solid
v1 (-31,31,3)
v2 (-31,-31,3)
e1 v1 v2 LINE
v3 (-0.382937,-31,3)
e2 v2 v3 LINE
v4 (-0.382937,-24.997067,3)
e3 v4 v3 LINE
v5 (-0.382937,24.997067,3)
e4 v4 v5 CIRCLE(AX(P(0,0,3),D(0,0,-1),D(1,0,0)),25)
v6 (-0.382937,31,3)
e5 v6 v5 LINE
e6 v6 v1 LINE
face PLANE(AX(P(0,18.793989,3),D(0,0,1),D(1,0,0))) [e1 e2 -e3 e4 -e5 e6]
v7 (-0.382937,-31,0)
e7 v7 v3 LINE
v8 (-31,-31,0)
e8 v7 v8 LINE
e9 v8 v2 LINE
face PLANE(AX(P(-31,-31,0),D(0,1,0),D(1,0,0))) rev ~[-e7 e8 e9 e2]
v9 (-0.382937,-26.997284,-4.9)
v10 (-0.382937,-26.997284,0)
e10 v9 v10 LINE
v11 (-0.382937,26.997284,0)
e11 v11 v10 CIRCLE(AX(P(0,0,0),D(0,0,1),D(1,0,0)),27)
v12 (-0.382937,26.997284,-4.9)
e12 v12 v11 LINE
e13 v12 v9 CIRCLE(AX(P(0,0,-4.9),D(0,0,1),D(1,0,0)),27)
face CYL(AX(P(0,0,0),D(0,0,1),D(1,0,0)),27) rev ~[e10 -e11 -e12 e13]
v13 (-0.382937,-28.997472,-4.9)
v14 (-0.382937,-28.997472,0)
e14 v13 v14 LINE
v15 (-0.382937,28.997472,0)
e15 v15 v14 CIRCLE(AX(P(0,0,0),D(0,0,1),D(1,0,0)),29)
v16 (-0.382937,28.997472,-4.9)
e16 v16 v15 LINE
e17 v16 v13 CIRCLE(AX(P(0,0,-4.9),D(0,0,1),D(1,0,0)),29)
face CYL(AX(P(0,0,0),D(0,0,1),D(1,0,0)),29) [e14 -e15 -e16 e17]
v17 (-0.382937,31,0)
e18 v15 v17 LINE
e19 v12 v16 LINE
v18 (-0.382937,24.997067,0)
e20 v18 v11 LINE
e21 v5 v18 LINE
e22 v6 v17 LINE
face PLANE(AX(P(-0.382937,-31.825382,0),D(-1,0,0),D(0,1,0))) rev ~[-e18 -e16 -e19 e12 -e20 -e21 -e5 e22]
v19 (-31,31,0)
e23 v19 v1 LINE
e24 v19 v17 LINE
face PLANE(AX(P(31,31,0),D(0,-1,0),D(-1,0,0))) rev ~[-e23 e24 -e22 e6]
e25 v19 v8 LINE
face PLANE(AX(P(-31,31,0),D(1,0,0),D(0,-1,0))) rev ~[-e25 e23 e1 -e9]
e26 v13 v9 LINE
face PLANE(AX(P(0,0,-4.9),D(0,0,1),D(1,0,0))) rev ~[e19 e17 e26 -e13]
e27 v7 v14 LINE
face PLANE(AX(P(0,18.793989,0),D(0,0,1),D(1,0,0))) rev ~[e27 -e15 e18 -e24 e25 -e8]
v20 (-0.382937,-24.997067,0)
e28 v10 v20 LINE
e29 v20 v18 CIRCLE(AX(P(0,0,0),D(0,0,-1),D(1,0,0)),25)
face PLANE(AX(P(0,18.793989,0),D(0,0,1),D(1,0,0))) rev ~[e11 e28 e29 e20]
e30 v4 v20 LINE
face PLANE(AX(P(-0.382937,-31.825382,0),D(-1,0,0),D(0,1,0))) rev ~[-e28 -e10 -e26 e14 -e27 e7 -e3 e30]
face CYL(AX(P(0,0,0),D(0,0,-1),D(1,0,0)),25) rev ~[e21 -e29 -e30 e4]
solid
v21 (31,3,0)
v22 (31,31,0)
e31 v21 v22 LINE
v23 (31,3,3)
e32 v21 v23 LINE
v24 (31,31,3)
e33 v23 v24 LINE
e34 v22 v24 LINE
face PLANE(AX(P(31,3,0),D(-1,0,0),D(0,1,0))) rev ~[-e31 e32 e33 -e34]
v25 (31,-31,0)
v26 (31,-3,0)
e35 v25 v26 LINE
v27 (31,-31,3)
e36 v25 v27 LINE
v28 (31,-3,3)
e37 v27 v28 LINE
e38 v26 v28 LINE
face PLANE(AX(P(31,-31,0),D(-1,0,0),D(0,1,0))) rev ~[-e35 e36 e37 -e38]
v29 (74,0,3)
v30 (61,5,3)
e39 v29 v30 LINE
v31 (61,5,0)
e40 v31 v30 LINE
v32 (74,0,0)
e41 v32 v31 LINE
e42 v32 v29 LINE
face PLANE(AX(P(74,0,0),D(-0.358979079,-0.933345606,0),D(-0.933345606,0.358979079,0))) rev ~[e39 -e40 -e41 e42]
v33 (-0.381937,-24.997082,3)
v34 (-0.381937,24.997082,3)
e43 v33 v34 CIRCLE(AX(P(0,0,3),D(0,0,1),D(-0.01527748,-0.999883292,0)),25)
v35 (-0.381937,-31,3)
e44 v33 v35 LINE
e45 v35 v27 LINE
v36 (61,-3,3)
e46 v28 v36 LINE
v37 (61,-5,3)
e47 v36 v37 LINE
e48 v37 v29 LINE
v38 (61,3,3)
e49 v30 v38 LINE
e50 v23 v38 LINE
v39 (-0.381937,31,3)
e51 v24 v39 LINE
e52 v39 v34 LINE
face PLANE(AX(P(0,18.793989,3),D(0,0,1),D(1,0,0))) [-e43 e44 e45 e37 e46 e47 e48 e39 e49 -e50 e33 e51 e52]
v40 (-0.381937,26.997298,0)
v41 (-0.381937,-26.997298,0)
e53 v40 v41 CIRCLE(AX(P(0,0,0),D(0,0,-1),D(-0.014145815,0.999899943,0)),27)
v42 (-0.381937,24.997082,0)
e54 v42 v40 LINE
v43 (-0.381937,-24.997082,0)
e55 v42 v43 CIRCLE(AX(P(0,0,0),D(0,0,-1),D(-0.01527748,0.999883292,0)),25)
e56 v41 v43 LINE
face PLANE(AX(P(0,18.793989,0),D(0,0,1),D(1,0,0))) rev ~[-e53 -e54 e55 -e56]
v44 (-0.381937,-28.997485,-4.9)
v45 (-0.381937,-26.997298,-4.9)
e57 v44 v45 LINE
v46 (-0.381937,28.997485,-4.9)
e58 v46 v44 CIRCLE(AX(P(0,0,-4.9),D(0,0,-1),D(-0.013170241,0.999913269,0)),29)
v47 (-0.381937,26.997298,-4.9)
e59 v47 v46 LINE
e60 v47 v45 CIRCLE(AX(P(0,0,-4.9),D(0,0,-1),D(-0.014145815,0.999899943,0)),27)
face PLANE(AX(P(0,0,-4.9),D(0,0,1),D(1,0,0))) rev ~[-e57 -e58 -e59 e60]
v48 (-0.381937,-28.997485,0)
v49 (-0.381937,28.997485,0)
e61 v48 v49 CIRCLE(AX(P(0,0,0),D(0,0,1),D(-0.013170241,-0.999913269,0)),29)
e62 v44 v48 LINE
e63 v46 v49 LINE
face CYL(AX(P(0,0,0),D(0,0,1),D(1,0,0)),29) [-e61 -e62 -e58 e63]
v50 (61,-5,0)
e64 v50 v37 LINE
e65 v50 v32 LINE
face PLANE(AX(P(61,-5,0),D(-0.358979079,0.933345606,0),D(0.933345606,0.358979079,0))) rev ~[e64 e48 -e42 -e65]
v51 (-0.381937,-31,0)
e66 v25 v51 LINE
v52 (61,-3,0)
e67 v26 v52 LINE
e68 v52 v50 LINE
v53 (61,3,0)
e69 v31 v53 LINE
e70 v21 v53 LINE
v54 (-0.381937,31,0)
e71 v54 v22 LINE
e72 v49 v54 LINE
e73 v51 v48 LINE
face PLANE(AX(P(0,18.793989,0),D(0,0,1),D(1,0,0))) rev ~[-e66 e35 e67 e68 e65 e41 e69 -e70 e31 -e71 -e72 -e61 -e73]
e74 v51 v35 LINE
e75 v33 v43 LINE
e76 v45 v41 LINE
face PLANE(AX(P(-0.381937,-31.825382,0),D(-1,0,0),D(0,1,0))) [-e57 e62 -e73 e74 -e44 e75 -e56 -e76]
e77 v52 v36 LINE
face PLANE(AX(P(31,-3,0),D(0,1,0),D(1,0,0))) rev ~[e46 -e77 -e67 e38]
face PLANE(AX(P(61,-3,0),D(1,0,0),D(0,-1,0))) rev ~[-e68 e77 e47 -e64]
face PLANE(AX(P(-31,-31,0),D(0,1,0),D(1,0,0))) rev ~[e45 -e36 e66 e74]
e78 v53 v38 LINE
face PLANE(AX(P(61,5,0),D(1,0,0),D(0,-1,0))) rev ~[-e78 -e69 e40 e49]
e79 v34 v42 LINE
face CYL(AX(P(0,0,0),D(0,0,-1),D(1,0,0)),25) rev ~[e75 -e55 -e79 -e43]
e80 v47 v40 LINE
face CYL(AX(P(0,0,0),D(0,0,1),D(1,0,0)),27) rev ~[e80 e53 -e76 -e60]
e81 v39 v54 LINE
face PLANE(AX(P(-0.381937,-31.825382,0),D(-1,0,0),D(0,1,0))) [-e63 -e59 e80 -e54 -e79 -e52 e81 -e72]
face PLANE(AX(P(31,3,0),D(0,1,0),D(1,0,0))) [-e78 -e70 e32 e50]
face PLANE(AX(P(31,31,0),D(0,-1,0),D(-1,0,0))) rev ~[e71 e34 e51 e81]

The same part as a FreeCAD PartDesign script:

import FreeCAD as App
import Part
import Sketcher


def add_polygon(sketch, points):
    """Adds a closed chain of lines whose ends are joined by coincident constraints."""
    first, n = sketch.GeometryCount, len(points)
    for a, b in zip(points, points[1:] + points[:1]):
        sketch.addGeometry(Part.LineSegment(App.Vector(*a, 0), App.Vector(*b, 0)), False)
    for i in range(n):
        sketch.addConstraint(Sketcher.Constraint("Coincident", first + i, 2, first + (i + 1) % n, 1))

doc = App.newDocument("Part")
body = doc.addObject("PartDesign::Body", "Body")
body.AllowCompound = True

sketch1 = doc.addObject("Sketcher::SketchObject", "Sketch")
body.addObject(sketch1)
sketch1.AttachmentSupport = (doc.XY_Plane, [""])
sketch1.MapMode = "FlatFace"
add_polygon(sketch1, [(31, 31), (-31, 31), (-31, -31), (31, -31), (31, -3), (61, -3), (61, -5), (74, 0), (61, 5), (61, 3), (31, 3)])
sketch1.addGeometry(Part.Circle(App.Vector(0, 0, 0), App.Vector(0, 0, 1), 25), False)
sketch1.addConstraint(Sketcher.Constraint("Horizontal", 0))
sketch1.addConstraint(Sketcher.Constraint("Vertical", 1))
sketch1.addConstraint(Sketcher.Constraint("Horizontal", 2))
sketch1.addConstraint(Sketcher.Constraint("Vertical", 3))
sketch1.addConstraint(Sketcher.Constraint("Horizontal", 4))
sketch1.addConstraint(Sketcher.Constraint("Vertical", 5))
sketch1.addConstraint(Sketcher.Constraint("Vertical", 8))
sketch1.addConstraint(Sketcher.Constraint("Horizontal", 9))
sketch1.addConstraint(Sketcher.Constraint("Vertical", 10))
sketch1.addConstraint(Sketcher.Constraint("Coincident", 11, 3, -1, 1))
sketch1.addConstraint(Sketcher.Constraint("Symmetric", 0, 2, 2, 2, -1, 1))
sketch1.addConstraint(Sketcher.Constraint("Symmetric", 5, 2, 7, 2, -1))
sketch1.addConstraint(Sketcher.Constraint("Symmetric", 3, 2, 9, 2, -1))
sketch1.addConstraint(Sketcher.Constraint("PointOnObject", 6, 2, -1))
sketch1.addConstraint(Sketcher.Constraint("Equal", 2, 1))
sketch1.addConstraint(Sketcher.Constraint("Diameter", 11, 50.0))
sketch1.addConstraint(Sketcher.Constraint("DistanceX", 0, 2, 0, 1, 62.0))
sketch1.addConstraint(Sketcher.Constraint("DistanceX", 4, 1, 4, 2, 30.0))
sketch1.addConstraint(Sketcher.Constraint("DistanceY", 3, 1, 3, 2, 28.0))
sketch1.addConstraint(Sketcher.Constraint("DistanceY", 5, 2, 5, 1, 2.0))
sketch1.addConstraint(Sketcher.Constraint("DistanceX", -1, 1, 6, 2, 74.0))
pad1 = doc.addObject("PartDesign::Pad", "Pad")
body.addObject(pad1)
pad1.Profile = sketch1
pad1.Length = 3

sketch2 = doc.addObject("Sketcher::SketchObject", "Sketch001")
body.addObject(sketch2)
sketch2.AttachmentSupport = (doc.XY_Plane, [""])
sketch2.MapMode = "FlatFace"
sketch2.addGeometry(Part.Circle(App.Vector(0, 0, 0), App.Vector(0, 0, 1), 29), False)
sketch2.addGeometry(Part.Circle(App.Vector(0, 0, 0), App.Vector(0, 0, 1), 27), False)
sketch2.addConstraint(Sketcher.Constraint("Coincident", 0, 3, -1, 1))
sketch2.addConstraint(Sketcher.Constraint("Coincident", 1, 3, -1, 1))
sketch2.addConstraint(Sketcher.Constraint("Diameter", 0, 58.0))
sketch2.addConstraint(Sketcher.Constraint("Diameter", 1, 54.0))
pad2 = doc.addObject("PartDesign::Pad", "Pad001")
body.addObject(pad2)
pad2.Profile = sketch2
pad2.Length = 4.9
pad2.Reversed = True

sketch3 = doc.addObject("Sketcher::SketchObject", "Sketch002")
body.addObject(sketch3)
sketch3.AttachmentSupport = (doc.XY_Plane, [""])
sketch3.MapMode = "FlatFace"
add_polygon(sketch3, [(-0.3829, 468.1746), (-0.3829, -31.8254), (-0.3819, -31.8254), (-0.3819, 468.1746)])
sketch3.addConstraint(Sketcher.Constraint("Vertical", 0))
sketch3.addConstraint(Sketcher.Constraint("Horizontal", 1))
sketch3.addConstraint(Sketcher.Constraint("Vertical", 2))
sketch3.addConstraint(Sketcher.Constraint("Horizontal", 3))
sketch3.addConstraint(Sketcher.Constraint("DistanceY", 0, 2, 0, 1, 500.0))
sketch3.addConstraint(Sketcher.Constraint("DistanceX", 1, 1, 1, 2, 0.001))
sketch3.addConstraint(Sketcher.Constraint("DistanceY", -1, 1, 2, 2, 468.174618))
sketch3.addConstraint(Sketcher.Constraint("DistanceX", 0, 2, -1, 1, 0.382937))
pocket1 = doc.addObject("PartDesign::Pocket", "Pocket")
body.addObject(pocket1)
pocket1.Profile = sketch3
pocket1.Length = 25

sketch4 = doc.addObject("Sketcher::SketchObject", "Sketch003")
body.addObject(sketch4)
sketch4.AttachmentSupport = (doc.XY_Plane, [""])
sketch4.MapMode = "FlatFace"
add_polygon(sketch4, [(-0.3829, 468.1746), (-0.3829, -31.8254), (-0.3819, -31.8254), (-0.3819, 468.1746)])
sketch4.addConstraint(Sketcher.Constraint("Vertical", 0))
sketch4.addConstraint(Sketcher.Constraint("Horizontal", 1))
sketch4.addConstraint(Sketcher.Constraint("Vertical", 2))
sketch4.addConstraint(Sketcher.Constraint("Horizontal", 3))
sketch4.addConstraint(Sketcher.Constraint("DistanceY", 0, 2, 0, 1, 500.0))
sketch4.addConstraint(Sketcher.Constraint("DistanceX", 1, 1, 1, 2, 0.001))
sketch4.addConstraint(Sketcher.Constraint("DistanceY", -1, 1, 2, 2, 468.174618))
sketch4.addConstraint(Sketcher.Constraint("DistanceX", 0, 2, -1, 1, 0.382937))
pocket2 = doc.addObject("PartDesign::Pocket", "Pocket001")
body.addObject(pocket2)
pocket2.Profile = sketch4
pocket2.Length = 25
pocket2.Reversed = True

doc.recompute()
